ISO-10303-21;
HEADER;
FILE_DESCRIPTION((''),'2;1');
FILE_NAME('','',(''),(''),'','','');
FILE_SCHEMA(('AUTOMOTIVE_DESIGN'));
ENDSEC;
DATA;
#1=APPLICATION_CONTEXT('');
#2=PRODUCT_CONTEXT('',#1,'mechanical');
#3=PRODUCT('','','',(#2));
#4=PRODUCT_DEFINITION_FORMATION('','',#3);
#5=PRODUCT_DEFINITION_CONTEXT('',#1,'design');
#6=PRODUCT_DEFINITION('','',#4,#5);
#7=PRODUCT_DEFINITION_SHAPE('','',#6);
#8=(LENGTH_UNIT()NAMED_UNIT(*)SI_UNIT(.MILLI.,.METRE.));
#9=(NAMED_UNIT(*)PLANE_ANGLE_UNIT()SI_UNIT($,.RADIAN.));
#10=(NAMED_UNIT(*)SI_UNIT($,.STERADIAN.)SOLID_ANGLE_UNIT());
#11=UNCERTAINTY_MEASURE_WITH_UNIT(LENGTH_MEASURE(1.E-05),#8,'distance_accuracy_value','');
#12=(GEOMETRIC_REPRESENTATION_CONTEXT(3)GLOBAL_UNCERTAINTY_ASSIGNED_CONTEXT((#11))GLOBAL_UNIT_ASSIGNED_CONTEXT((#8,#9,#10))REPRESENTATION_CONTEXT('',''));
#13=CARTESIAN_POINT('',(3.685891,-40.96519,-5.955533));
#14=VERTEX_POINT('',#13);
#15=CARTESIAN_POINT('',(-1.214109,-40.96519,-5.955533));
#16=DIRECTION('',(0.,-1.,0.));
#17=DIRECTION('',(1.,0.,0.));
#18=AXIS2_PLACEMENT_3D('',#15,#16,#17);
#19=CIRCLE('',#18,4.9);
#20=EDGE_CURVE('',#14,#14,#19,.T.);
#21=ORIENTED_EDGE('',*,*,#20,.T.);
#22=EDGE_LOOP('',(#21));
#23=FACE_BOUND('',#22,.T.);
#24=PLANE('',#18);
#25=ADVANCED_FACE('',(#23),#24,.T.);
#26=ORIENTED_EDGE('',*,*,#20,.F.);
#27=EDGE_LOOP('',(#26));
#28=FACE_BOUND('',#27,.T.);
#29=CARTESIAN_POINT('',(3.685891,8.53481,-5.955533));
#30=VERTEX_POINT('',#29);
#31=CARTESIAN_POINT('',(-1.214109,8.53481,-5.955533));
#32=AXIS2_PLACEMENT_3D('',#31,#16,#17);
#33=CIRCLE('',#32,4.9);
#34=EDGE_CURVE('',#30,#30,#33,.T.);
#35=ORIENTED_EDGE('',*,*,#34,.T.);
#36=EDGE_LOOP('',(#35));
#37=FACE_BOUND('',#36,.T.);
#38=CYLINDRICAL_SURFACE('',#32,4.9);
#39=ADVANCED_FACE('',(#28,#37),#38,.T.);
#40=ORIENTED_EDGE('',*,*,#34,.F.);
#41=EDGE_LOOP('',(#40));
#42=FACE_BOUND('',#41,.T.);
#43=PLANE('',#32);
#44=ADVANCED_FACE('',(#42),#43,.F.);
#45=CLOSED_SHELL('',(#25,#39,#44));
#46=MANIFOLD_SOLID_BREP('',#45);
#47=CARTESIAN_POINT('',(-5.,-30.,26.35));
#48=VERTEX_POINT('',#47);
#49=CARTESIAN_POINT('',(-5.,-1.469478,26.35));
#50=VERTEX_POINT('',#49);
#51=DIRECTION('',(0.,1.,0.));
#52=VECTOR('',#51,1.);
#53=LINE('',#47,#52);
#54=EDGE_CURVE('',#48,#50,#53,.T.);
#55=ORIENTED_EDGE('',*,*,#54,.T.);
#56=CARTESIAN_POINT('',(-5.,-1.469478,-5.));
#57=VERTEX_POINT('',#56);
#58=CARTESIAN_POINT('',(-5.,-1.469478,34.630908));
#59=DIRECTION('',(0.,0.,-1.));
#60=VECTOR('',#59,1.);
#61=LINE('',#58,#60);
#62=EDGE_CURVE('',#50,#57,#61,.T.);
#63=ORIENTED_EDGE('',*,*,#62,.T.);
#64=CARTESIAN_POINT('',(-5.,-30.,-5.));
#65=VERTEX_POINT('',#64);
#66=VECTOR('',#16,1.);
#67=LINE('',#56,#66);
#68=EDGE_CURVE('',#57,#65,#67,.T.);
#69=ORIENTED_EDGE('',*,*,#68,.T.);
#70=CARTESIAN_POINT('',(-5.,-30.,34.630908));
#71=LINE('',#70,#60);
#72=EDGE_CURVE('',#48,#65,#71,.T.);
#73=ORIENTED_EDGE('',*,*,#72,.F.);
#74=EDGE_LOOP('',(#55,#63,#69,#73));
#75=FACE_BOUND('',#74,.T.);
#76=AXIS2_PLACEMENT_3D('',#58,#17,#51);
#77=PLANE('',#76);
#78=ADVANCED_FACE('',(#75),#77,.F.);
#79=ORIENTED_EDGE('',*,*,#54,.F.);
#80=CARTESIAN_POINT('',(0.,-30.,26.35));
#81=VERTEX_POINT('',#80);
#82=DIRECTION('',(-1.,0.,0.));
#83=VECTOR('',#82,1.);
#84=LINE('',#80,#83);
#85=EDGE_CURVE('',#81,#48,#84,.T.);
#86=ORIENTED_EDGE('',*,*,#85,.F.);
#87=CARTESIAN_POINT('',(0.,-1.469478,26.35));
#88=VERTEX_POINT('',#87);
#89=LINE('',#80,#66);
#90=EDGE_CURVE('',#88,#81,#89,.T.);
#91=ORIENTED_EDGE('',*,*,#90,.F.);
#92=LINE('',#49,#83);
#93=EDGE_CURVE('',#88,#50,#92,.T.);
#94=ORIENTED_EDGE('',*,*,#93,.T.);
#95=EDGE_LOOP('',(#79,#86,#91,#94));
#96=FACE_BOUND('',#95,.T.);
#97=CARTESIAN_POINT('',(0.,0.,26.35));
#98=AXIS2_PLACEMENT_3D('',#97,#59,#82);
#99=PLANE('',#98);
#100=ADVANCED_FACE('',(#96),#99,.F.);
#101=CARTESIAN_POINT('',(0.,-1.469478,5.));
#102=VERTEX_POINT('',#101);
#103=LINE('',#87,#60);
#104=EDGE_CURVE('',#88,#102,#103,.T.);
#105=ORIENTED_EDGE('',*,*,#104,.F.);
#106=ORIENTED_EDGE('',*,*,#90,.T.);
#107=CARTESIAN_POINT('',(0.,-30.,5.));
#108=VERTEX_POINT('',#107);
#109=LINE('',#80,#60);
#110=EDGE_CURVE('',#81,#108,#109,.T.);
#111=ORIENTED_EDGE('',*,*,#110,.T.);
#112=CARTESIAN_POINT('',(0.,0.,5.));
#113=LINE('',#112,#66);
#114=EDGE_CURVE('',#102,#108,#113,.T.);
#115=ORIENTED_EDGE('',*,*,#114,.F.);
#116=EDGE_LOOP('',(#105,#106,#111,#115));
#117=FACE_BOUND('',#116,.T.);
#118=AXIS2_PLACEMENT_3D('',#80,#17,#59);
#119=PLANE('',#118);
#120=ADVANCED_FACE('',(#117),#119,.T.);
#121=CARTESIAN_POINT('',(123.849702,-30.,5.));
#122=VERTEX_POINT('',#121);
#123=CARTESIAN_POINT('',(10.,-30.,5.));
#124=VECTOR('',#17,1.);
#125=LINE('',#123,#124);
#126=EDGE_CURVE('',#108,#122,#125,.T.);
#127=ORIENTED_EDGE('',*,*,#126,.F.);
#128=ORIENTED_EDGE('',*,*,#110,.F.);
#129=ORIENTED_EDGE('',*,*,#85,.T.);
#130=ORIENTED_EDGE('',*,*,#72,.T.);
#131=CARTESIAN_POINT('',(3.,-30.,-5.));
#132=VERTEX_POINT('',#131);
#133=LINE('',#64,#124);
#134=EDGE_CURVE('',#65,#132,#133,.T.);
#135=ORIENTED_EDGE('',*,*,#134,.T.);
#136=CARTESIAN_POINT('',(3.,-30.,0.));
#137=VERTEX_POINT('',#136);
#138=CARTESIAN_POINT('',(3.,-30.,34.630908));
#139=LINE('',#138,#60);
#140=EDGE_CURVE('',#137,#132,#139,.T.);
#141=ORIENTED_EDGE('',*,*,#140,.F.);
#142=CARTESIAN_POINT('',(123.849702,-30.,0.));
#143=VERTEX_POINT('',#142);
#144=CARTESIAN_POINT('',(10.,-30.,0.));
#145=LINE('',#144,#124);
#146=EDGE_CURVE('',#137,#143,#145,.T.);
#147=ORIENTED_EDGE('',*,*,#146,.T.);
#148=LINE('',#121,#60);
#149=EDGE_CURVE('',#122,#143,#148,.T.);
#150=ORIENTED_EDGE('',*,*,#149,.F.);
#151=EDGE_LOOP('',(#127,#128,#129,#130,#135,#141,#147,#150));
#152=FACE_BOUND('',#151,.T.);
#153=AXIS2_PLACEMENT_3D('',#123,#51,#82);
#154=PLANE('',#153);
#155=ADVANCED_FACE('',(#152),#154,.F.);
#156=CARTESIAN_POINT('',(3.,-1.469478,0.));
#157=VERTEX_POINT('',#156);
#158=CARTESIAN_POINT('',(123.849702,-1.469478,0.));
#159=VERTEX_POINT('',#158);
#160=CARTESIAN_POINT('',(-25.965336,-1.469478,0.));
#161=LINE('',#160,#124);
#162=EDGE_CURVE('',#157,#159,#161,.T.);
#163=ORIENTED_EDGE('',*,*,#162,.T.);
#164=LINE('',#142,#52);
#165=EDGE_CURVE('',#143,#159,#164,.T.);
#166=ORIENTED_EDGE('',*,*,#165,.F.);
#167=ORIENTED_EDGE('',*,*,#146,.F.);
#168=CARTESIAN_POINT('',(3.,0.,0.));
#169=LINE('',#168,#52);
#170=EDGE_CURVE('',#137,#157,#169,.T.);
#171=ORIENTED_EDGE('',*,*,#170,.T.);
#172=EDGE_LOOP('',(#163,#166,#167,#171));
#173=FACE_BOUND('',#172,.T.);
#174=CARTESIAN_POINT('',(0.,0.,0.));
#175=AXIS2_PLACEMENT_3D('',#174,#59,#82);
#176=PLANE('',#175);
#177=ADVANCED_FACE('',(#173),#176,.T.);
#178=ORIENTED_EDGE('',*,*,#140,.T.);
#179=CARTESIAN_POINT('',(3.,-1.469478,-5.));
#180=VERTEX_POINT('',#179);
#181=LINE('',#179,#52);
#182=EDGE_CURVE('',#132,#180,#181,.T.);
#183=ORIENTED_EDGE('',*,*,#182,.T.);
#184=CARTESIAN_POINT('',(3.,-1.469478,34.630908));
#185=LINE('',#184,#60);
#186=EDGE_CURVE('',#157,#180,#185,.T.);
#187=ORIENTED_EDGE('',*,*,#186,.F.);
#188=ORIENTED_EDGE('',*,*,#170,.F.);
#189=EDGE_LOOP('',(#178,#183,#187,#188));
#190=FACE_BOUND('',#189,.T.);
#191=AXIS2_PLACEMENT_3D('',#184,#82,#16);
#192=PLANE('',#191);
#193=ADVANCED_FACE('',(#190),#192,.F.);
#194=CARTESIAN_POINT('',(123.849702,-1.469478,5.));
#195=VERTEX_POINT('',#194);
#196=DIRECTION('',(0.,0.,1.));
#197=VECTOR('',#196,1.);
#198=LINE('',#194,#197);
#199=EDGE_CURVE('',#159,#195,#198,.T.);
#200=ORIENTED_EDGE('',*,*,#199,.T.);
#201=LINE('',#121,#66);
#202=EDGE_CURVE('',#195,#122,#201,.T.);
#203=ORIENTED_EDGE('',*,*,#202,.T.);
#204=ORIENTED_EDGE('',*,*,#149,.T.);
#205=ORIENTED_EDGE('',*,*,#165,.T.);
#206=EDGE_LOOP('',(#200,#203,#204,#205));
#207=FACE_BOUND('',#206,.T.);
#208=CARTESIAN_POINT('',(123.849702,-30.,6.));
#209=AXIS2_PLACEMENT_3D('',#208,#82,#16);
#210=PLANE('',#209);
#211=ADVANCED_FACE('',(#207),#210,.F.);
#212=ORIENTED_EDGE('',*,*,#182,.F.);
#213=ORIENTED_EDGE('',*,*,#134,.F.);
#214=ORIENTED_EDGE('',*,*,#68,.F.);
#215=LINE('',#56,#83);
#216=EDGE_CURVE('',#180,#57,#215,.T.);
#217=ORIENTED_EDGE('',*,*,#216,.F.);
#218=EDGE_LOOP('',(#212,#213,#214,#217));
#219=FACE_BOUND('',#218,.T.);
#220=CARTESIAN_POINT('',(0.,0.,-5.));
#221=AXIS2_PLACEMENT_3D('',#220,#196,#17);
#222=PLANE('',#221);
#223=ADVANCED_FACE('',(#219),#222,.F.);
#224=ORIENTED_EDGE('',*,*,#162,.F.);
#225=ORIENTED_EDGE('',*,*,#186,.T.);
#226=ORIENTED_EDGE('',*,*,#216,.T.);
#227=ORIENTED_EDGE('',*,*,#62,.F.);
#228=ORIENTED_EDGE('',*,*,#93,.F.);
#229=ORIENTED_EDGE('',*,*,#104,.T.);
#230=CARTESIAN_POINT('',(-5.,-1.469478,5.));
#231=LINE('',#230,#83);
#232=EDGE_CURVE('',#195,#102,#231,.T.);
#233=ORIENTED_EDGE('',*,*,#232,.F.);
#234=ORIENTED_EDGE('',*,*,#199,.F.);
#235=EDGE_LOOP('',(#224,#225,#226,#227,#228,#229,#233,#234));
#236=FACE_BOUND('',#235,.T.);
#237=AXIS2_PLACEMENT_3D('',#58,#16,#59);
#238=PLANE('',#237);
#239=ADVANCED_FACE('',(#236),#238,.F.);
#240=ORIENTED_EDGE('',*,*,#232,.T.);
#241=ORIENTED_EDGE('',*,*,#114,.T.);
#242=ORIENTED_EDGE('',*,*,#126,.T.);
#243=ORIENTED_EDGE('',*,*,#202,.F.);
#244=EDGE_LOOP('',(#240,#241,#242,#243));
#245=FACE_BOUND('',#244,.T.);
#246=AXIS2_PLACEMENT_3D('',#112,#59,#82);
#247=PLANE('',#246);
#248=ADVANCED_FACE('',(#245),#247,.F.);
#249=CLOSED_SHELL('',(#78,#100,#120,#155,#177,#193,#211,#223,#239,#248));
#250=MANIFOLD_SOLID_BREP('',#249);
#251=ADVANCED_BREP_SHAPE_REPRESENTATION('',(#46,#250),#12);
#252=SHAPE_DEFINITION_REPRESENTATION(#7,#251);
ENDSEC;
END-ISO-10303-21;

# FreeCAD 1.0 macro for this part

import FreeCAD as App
import Part
import Sketcher
Q = App.Units.Quantity


def add_polygon(sketch, points):
    """Adds a closed chain of lines whose ends are joined by coincident constraints."""
    first, n = sketch.GeometryCount, len(points)
    for a, b in zip(points, points[1:] + points[:1]):
        sketch.addGeometry(Part.LineSegment(App.Vector(*a, 0), App.Vector(*b, 0)), False)
    for i in range(n):
        sketch.addConstraint(Sketcher.Constraint("Coincident", first + i, 2, first + (i + 1) % n, 1))

doc = App.newDocument("Part")
params = doc.addObject("Spreadsheet::Sheet", "Params")
for row, (alias, value) in enumerate([
    ("sketch1_width", "10 mm"),
    ("sketch1_height", "28.53 mm"),
    ("pad1_length", "5 mm"),
    ("sketch2_diameter", "3.2 mm"),
    ("pocket1_length", "43 mm"),
    ("sketch3_width", "8 mm"),
    ("pad2_length", "5 mm"),
    ("pad2_length2", "5 mm"),
    ("sketch4_height", "5 mm"),
    ("pad3_length", "120.849702 mm"),
    ("sketch5_width", "5 mm"),
    ("pad4_length", "26.35 mm"),
    ("sketch6_width", "5 mm"),
    ("sketch6_height", "7 mm"),
    ("pad5_length", "21.504288 mm"),
    ("sketch7_width", "5 mm"),
    ("sketch7_height", "21.35 mm"),
    ("sketch8_diameter", "9.8 mm"),
    ("pad6_length", "49.5 mm"),
], start=1):
    params.set(f"A{row}", alias)
    params.set(f"B{row}", "=" + value)
    params.setAlias(f"B{row}", alias)

body = doc.addObject("PartDesign::Body", "Body")

# Sketch on XY plane
sketch1 = body.newObject("Sketcher::SketchObject", "Sketch")
sketch1.AttachmentSupport = (doc.getObject("XY_Plane"), [""])
sketch1.MapMode = "FlatFace"
add_polygon(sketch1, [(0, -1), (0, -30), (10, -30), (10, -1)])  # lines 0-3
sketch1.addConstraint(Sketcher.Constraint("Vertical", 0))
sketch1.addConstraint(Sketcher.Constraint("Horizontal", 1))
sketch1.addConstraint(Sketcher.Constraint("Vertical", 2))
sketch1.addConstraint(Sketcher.Constraint("Horizontal", 3))
sketch1.addConstraint(Sketcher.Constraint("PointOnObject", 0, 2, -2))
sketch1.addConstraint(Sketcher.Constraint("DistanceX", 1, 1, 1, 2, Q("10 mm")))
sketch1.addConstraint(Sketcher.Constraint("DistanceY", 0, 2, -1, 1, Q("30 mm")))
sketch1.addConstraint(Sketcher.Constraint("DistanceY", 0, 2, 0, 1, Q("28.53 mm")))
sketch1.setExpression("Constraints[9]", "Params.sketch1_width")
sketch1.setExpression("Constraints[11]", "Params.sketch1_height")
pad1 = body.newObject("PartDesign::Pad", "Pad")
pad1.Profile = sketch1
pad1.setExpression("Length", "Params.pad1_length")

# Sketch on XY plane
sketch2 = body.newObject("Sketcher::SketchObject", "Sketch001")
sketch2.AttachmentSupport = (doc.getObject("XY_Plane"), [""])
sketch2.MapMode = "FlatFace"
sketch2.addGeometry(Part.Circle(App.Vector(6.8, -9.5, 0), App.Vector(0, 0, 1), 1.6), False)
sketch2.addGeometry(Part.Circle(App.Vector(6.8, -22, 0), App.Vector(0, 0, 1), 1.6), False)
sketch2.addConstraint(Sketcher.Constraint("Equal", 0, 1))
sketch2.addConstraint(Sketcher.Constraint("Vertical", 0, 3, 1, 3))
sketch2.addConstraint(Sketcher.Constraint("Diameter", 0, Q("3.2 mm")))
sketch2.addConstraint(Sketcher.Constraint("DistanceY", 1, 3, -1, 1, Q("22 mm")))
sketch2.addConstraint(Sketcher.Constraint("DistanceY", 0, 3, -1, 1, Q("9.47 mm")))
sketch2.addConstraint(Sketcher.Constraint("DistanceX", -1, 1, 0, 3, Q("6.81031 mm")))
sketch2.setExpression("Constraints[2]", "Params.sketch2_diameter")
pocket1 = body.newObject("PartDesign::Pocket", "Pocket")
pocket1.Profile = sketch2
pocket1.setExpression("Length", "Params.pocket1_length")
pocket1.Reversed = True

# Sketch on XY plane
sketch3 = body.newObject("Sketcher::SketchObject", "Sketch002")
sketch3.AttachmentSupport = (doc.getObject("XY_Plane"), [""])
sketch3.MapMode = "FlatFace"
add_polygon(sketch3, [(-5, -1), (-5, -30), (3, -30), (3, -1)])  # lines 0-3
sketch3.addConstraint(Sketcher.Constraint("Vertical", 0))
sketch3.addConstraint(Sketcher.Constraint("Horizontal", 1))
sketch3.addConstraint(Sketcher.Constraint("Vertical", 2))
sketch3.addConstraint(Sketcher.Constraint("Horizontal", 3))
sketch3.addConstraint(Sketcher.Constraint("DistanceX", 1, 1, 1, 2, Q("8 mm")))
sketch3.addConstraint(Sketcher.Constraint("DistanceX", 0, 2, -1, 1, Q("5 mm")))
sketch3.addConstraint(Sketcher.Constraint("DistanceY", 0, 2, -1, 1, Q("30 mm")))
sketch3.addConstraint(Sketcher.Constraint("DistanceY", 0, 2, 0, 1, Q("28.530522 mm")))
sketch3.setExpression("Constraints[8]", "Params.sketch3_width")
pad2 = body.newObject("PartDesign::Pad", "Pad001")
pad2.Profile = sketch3
pad2.Type = "TwoLengths"
pad2.setExpression("Length", "Params.pad2_length")
pad2.setExpression("Length2", "Params.pad2_length2")

# Sketch on YZ plane
sketch4 = body.newObject("Sketcher::SketchObject", "Sketch003")
sketch4.AttachmentSupport = (doc.getObject("YZ_Plane"), [""])
sketch4.MapMode = "FlatFace"
sketch4.AttachmentOffset = App.Placement(App.Vector(0, 0, 123.849702), App.Rotation())
add_polygon(sketch4, [(-1, 0), (-30, 0), (-30, 5), (-1, 5)])  # lines 0-3
sketch4.addConstraint(Sketcher.Constraint("Horizontal", 0))
sketch4.addConstraint(Sketcher.Constraint("Vertical", 1))
sketch4.addConstraint(Sketcher.Constraint("Horizontal", 2))
sketch4.addConstraint(Sketcher.Constraint("Vertical", 3))
sketch4.addConstraint(Sketcher.Constraint("PointOnObject", 0, 2, -1))
sketch4.addConstraint(Sketcher.Constraint("DistanceY", 1, 1, 1, 2, Q("5 mm")))
sketch4.addConstraint(Sketcher.Constraint("DistanceX", 0, 2, -1, 1, Q("30 mm")))
sketch4.addConstraint(Sketcher.Constraint("DistanceX", 0, 2, 0, 1, Q("28.530522 mm")))
sketch4.setExpression("Constraints[9]", "Params.sketch4_height")
pad3 = body.newObject("PartDesign::Pad", "Pad002")
pad3.Profile = sketch4
pad3.setExpression("Length", "Params.pad3_length")
pad3.Reversed = True

# Sketch on XY plane
sketch5 = body.newObject("Sketcher::SketchObject", "Sketch004")
sketch5.AttachmentSupport = (doc.getObject("XY_Plane"), [""])
sketch5.MapMode = "FlatFace"
add_polygon(sketch5, [(0, -1), (0, -30), (-5, -30), (-5, -1)])  # lines 0-3
sketch5.addConstraint(Sketcher.Constraint("Vertical", 0))
sketch5.addConstraint(Sketcher.Constraint("Horizontal", 1))
sketch5.addConstraint(Sketcher.Constraint("Vertical", 2))
sketch5.addConstraint(Sketcher.Constraint("Horizontal", 3))
sketch5.addConstraint(Sketcher.Constraint("PointOnObject", 0, 2, -2))
sketch5.addConstraint(Sketcher.Constraint("DistanceX", 1, 2, 1, 1, Q("5 mm")))
sketch5.addConstraint(Sketcher.Constraint("DistanceY", 0, 2, -1, 1, Q("30 mm")))
sketch5.addConstraint(Sketcher.Constraint("DistanceY", 0, 2, 0, 1, Q("28.530522 mm")))
sketch5.setExpression("Constraints[9]", "Params.sketch5_width")
pad4 = body.newObject("PartDesign::Pad", "Pad003")
pad4.Profile = sketch5
pad4.setExpression("Length", "Params.pad4_length")

# Sketch on XZ plane
sketch6 = body.newObject("Sketcher::SketchObject", "Sketch005")
sketch6.AttachmentSupport = (doc.getObject("XZ_Plane"), [""])
sketch6.MapMode = "FlatFace"
sketch6.AttachmentOffset = App.Placement(App.Vector(0, 0, 1.469478), App.Rotation())
add_polygon(sketch6, [(-5, 19), (-5, 26), (0, 26), (0, 19)])  # lines 0-3
sketch6.addConstraint(Sketcher.Constraint("Vertical", 0))
sketch6.addConstraint(Sketcher.Constraint("Horizontal", 1))
sketch6.addConstraint(Sketcher.Constraint("Vertical", 2))
sketch6.addConstraint(Sketcher.Constraint("Horizontal", 3))
sketch6.addConstraint(Sketcher.Constraint("PointOnObject", 1, 2, -2))
sketch6.addConstraint(Sketcher.Constraint("DistanceX", 1, 1, 1, 2, Q("5 mm")))
sketch6.addConstraint(Sketcher.Constraint("DistanceY", 0, 1, 0, 2, Q("7 mm")))
sketch6.addConstraint(Sketcher.Constraint("DistanceY", -1, 1, 0, 2, Q("26.35 mm")))
sketch6.setExpression("Constraints[9]", "Params.sketch6_width")
sketch6.setExpression("Constraints[10]", "Params.sketch6_height")
pad5 = body.newObject("PartDesign::Pad", "Pad004")
pad5.Profile = sketch6
pad5.setExpression("Length", "Params.pad5_length")
pad5.Reversed = True

# Sketch on XZ plane
sketch7 = body.newObject("Sketcher::SketchObject", "Sketch006")
sketch7.AttachmentSupport = (doc.getObject("XZ_Plane"), [""])
sketch7.MapMode = "FlatFace"
sketch7.AttachmentOffset = App.Placement(App.Vector(0, 0, 1.469478), App.Rotation())
add_polygon(sketch7, [(-5, 26), (-5, 5), (0, 5), (0, 26)])  # lines 0-3
sketch7.addConstraint(Sketcher.Constraint("Vertical", 0))
sketch7.addConstraint(Sketcher.Constraint("Horizontal", 1))
sketch7.addConstraint(Sketcher.Constraint("Vertical", 2))
sketch7.addConstraint(Sketcher.Constraint("Horizontal", 3))
sketch7.addConstraint(Sketcher.Constraint("PointOnObject", 1, 2, -2))
sketch7.addConstraint(Sketcher.Constraint("DistanceX", 1, 1, 1, 2, Q("5 mm")))
sketch7.addConstraint(Sketcher.Constraint("DistanceY", -1, 1, 0, 2, Q("5 mm")))
sketch7.addConstraint(Sketcher.Constraint("DistanceY", 0, 2, 0, 1, Q("21.35 mm")))
sketch7.setExpression("Constraints[9]", "Params.sketch7_width")
sketch7.setExpression("Constraints[11]", "Params.sketch7_height")
pocket2 = body.newObject("PartDesign::Pocket", "Pocket001")
pocket2.Profile = sketch7
pocket2.Type = "ThroughAll"
body2 = doc.addObject("PartDesign::Body", "Body001")

# Sketch on XZ plane
sketch8 = body2.newObject("Sketcher::SketchObject", "Sketch007")
sketch8.AttachmentSupport = (doc.getObject("XZ_Plane001"), [""])
sketch8.MapMode = "FlatFace"
sketch8.AttachmentOffset = App.Placement(App.Vector(0, 0, 40.96519), App.Rotation())
sketch8.addGeometry(Part.Circle(App.Vector(-1.2, -6, 0), App.Vector(0, 0, 1), 4.9), False)
sketch8.addConstraint(Sketcher.Constraint("Diameter", 0, Q("9.8 mm")))
sketch8.addConstraint(Sketcher.Constraint("DistanceX", 0, 3, -1, 1, Q("1.214109 mm")))
sketch8.addConstraint(Sketcher.Constraint("DistanceY", 0, 3, -1, 1, Q("5.955533 mm")))
sketch8.setExpression("Constraints[0]", "Params.sketch8_diameter")
pad6 = body2.newObject("PartDesign::Pad", "Pad005")
pad6.Profile = sketch8
pad6.setExpression("Length", "Params.pad6_length")
pad6.Reversed = True

doc.recompute()
